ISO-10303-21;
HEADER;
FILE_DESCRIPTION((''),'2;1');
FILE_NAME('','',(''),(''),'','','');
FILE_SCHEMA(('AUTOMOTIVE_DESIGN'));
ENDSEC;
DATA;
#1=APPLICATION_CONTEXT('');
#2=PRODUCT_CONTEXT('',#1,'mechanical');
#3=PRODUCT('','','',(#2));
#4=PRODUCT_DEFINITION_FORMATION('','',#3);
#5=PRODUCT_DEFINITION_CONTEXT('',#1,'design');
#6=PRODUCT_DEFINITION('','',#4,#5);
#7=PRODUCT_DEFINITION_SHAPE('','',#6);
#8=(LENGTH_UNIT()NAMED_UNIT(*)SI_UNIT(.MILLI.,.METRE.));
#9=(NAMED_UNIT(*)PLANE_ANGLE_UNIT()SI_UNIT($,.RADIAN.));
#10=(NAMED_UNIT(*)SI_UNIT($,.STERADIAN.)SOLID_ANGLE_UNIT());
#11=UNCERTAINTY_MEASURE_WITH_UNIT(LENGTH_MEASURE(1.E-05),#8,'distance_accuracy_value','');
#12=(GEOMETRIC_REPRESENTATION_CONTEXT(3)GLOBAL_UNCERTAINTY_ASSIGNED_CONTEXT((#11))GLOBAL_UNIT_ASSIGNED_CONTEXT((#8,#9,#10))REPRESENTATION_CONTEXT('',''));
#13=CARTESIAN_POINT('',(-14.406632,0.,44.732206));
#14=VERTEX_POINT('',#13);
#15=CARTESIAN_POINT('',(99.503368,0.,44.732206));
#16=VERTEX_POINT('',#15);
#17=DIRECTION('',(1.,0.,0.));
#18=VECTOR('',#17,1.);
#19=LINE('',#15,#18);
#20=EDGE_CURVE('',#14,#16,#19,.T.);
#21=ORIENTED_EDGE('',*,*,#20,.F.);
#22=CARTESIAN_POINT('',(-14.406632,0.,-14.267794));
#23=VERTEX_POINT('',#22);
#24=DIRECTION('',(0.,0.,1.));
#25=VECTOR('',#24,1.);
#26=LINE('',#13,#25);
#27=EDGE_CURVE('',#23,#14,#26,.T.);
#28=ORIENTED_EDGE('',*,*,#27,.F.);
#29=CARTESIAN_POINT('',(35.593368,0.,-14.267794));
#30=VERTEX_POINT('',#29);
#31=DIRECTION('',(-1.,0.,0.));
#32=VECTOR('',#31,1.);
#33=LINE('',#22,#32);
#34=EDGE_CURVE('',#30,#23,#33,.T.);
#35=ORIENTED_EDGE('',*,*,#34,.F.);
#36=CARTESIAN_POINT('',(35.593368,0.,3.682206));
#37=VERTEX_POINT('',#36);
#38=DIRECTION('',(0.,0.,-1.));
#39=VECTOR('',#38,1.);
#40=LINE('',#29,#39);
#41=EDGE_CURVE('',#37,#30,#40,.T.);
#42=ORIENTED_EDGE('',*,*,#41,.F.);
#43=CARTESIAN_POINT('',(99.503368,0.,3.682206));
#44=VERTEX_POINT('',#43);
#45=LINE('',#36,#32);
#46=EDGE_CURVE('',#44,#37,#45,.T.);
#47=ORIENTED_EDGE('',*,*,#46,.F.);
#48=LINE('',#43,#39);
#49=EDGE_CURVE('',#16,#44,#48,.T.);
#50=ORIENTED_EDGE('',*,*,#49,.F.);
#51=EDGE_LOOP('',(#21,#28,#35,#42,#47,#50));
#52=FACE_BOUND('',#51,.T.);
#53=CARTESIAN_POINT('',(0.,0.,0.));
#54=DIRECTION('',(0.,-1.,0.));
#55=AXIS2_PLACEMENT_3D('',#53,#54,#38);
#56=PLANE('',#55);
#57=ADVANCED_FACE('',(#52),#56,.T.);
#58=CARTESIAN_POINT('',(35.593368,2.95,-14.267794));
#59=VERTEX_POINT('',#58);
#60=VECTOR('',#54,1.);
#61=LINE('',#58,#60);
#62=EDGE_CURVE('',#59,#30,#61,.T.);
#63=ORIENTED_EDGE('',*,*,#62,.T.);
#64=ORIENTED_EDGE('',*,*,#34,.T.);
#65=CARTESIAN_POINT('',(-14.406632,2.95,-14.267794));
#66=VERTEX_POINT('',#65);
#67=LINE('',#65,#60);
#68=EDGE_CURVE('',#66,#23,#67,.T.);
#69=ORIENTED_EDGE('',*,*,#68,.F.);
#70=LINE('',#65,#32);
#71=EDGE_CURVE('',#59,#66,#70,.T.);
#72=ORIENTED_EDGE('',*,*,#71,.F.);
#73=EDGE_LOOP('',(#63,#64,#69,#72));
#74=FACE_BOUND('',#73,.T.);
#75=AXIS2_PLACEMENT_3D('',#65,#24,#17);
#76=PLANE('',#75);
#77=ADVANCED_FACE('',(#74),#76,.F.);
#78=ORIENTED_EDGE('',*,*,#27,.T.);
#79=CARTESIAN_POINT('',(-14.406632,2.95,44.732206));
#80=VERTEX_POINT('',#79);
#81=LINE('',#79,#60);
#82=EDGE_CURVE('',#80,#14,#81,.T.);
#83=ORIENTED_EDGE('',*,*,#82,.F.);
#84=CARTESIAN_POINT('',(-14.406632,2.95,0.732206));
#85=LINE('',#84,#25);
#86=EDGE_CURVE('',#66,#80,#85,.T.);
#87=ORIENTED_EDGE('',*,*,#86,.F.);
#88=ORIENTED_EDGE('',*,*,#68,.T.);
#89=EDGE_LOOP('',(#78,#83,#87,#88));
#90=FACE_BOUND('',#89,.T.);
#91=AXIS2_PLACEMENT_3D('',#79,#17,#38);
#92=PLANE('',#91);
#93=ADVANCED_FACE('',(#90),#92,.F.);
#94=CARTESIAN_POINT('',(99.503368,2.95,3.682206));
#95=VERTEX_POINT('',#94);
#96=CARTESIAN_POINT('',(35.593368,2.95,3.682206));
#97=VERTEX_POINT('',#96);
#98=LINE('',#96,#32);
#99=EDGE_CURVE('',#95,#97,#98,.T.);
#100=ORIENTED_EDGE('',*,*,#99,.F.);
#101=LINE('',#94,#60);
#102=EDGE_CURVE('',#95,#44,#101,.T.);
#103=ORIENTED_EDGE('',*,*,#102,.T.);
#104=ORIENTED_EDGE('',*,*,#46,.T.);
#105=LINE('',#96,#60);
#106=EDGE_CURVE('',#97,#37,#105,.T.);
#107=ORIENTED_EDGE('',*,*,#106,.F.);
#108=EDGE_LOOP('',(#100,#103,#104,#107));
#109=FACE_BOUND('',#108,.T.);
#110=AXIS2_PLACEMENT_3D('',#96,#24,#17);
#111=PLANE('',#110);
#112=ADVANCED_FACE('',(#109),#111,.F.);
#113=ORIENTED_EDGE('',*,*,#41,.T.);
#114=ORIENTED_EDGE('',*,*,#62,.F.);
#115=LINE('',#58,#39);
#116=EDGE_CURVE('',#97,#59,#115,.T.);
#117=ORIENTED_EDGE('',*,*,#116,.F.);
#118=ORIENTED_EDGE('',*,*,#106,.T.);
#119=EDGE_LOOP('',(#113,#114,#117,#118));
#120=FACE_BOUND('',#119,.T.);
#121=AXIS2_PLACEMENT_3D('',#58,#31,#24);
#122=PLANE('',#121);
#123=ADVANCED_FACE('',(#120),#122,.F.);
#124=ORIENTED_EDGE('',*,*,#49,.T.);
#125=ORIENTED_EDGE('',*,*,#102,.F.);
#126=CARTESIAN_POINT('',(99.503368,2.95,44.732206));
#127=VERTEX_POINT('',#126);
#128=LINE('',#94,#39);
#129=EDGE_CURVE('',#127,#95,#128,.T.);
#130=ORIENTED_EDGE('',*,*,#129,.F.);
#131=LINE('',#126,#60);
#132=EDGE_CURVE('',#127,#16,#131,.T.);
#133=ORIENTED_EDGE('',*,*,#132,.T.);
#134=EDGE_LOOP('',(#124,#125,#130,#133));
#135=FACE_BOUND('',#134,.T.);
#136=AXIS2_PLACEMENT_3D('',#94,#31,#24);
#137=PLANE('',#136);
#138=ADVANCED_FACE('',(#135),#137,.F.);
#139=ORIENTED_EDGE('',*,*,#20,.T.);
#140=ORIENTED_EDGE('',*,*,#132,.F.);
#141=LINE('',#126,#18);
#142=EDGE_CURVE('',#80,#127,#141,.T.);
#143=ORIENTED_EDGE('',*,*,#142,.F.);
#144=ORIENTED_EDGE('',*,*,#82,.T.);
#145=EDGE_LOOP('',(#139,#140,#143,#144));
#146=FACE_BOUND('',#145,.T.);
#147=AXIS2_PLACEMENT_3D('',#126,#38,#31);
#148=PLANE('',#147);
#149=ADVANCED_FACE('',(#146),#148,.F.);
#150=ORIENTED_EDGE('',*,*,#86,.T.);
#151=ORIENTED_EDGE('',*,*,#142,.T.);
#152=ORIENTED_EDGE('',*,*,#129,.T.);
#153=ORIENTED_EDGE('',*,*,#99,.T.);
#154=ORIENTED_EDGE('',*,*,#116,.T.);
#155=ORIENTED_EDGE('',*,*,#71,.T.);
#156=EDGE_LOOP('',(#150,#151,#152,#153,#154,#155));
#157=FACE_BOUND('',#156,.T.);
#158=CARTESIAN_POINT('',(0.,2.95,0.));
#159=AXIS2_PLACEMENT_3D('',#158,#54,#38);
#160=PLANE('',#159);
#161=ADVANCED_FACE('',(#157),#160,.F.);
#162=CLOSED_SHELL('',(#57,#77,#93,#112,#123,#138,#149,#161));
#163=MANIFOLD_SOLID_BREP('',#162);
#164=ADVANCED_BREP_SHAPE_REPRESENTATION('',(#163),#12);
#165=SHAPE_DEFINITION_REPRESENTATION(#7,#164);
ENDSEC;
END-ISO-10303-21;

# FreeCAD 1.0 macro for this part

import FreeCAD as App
import Part
import Sketcher

V = App.Vector


def add_polygon(sketch, points):
    """Adds a closed chain of lines whose ends are joined by coincident constraints."""
    first, n = sketch.GeometryCount, len(points)
    for a, b in zip(points, points[1:] + points[:1]):
        sketch.addGeometry(Part.LineSegment(App.Vector(*a, 0), App.Vector(*b, 0)), False)
    for i in range(n):
        sketch.addConstraint(Sketcher.Constraint("Coincident", first + i, 2, first + (i + 1) % n, 1))

doc = App.newDocument("Part")
params = doc.addObject("Spreadsheet::Sheet", "Params")
for row, (alias, value) in enumerate([
    ("sketch1_width", "50 mm"),
    ("sketch1_height", "59 mm"),
    ("sketch1_width2", "63.91 mm"),
    ("sketch1_height2", "41.05 mm"),
    ("pad1_length", "2.95 mm"),
], start=1):
    params.set(f"A{row}", alias)
    params.set(f"B{row}", "=" + value)
    params.setAlias(f"B{row}", alias)

body = doc.addObject("PartDesign::Body", "Body")

sketch1 = body.newObject("Sketcher::SketchObject", "Sketch")
sketch1.AttachmentSupport = (doc.getObject("XZ_Plane"), [""])
sketch1.MapMode = "FlatFace"
add_polygon(sketch1, [(100, 45), (100, 4), (36, 4), (36, -14), (-14, -14), (-14, 45)])
sketch1.addConstraint([
    Sketcher.Constraint("Vertical", 0),
    Sketcher.Constraint("Horizontal", 1),
    Sketcher.Constraint("Vertical", 2),
    Sketcher.Constraint("Horizontal", 3),
    Sketcher.Constraint("Vertical", 4),
    Sketcher.Constraint("Horizontal", 5),
    Sketcher.Constraint("DistanceX", 3, 2, 3, 1, 50.0),
    Sketcher.Constraint("DistanceY", 4, 1, 4, 2, 59.0),
    Sketcher.Constraint("DistanceX", 1, 2, 1, 1, 63.91),
    Sketcher.Constraint("DistanceY", 0, 2, 0, 1, 41.05),
    Sketcher.Constraint("DistanceX", -1, 1, 0, 2, 99.503368),
    Sketcher.Constraint("DistanceY", -1, 1, 0, 2, 3.682206),
])
sketch1.setExpression("Constraints[12]", "Params.sketch1_width")
sketch1.setExpression("Constraints[13]", "Params.sketch1_height")
sketch1.setExpression("Constraints[14]", "Params.sketch1_width2")
sketch1.setExpression("Constraints[15]", "Params.sketch1_height2")
pad1 = body.newObject("PartDesign::Pad", "Pad")
pad1.Profile = sketch1
pad1.setExpression("Length", "Params.pad1_length")
pad1.Reversed = True

doc.recompute()
